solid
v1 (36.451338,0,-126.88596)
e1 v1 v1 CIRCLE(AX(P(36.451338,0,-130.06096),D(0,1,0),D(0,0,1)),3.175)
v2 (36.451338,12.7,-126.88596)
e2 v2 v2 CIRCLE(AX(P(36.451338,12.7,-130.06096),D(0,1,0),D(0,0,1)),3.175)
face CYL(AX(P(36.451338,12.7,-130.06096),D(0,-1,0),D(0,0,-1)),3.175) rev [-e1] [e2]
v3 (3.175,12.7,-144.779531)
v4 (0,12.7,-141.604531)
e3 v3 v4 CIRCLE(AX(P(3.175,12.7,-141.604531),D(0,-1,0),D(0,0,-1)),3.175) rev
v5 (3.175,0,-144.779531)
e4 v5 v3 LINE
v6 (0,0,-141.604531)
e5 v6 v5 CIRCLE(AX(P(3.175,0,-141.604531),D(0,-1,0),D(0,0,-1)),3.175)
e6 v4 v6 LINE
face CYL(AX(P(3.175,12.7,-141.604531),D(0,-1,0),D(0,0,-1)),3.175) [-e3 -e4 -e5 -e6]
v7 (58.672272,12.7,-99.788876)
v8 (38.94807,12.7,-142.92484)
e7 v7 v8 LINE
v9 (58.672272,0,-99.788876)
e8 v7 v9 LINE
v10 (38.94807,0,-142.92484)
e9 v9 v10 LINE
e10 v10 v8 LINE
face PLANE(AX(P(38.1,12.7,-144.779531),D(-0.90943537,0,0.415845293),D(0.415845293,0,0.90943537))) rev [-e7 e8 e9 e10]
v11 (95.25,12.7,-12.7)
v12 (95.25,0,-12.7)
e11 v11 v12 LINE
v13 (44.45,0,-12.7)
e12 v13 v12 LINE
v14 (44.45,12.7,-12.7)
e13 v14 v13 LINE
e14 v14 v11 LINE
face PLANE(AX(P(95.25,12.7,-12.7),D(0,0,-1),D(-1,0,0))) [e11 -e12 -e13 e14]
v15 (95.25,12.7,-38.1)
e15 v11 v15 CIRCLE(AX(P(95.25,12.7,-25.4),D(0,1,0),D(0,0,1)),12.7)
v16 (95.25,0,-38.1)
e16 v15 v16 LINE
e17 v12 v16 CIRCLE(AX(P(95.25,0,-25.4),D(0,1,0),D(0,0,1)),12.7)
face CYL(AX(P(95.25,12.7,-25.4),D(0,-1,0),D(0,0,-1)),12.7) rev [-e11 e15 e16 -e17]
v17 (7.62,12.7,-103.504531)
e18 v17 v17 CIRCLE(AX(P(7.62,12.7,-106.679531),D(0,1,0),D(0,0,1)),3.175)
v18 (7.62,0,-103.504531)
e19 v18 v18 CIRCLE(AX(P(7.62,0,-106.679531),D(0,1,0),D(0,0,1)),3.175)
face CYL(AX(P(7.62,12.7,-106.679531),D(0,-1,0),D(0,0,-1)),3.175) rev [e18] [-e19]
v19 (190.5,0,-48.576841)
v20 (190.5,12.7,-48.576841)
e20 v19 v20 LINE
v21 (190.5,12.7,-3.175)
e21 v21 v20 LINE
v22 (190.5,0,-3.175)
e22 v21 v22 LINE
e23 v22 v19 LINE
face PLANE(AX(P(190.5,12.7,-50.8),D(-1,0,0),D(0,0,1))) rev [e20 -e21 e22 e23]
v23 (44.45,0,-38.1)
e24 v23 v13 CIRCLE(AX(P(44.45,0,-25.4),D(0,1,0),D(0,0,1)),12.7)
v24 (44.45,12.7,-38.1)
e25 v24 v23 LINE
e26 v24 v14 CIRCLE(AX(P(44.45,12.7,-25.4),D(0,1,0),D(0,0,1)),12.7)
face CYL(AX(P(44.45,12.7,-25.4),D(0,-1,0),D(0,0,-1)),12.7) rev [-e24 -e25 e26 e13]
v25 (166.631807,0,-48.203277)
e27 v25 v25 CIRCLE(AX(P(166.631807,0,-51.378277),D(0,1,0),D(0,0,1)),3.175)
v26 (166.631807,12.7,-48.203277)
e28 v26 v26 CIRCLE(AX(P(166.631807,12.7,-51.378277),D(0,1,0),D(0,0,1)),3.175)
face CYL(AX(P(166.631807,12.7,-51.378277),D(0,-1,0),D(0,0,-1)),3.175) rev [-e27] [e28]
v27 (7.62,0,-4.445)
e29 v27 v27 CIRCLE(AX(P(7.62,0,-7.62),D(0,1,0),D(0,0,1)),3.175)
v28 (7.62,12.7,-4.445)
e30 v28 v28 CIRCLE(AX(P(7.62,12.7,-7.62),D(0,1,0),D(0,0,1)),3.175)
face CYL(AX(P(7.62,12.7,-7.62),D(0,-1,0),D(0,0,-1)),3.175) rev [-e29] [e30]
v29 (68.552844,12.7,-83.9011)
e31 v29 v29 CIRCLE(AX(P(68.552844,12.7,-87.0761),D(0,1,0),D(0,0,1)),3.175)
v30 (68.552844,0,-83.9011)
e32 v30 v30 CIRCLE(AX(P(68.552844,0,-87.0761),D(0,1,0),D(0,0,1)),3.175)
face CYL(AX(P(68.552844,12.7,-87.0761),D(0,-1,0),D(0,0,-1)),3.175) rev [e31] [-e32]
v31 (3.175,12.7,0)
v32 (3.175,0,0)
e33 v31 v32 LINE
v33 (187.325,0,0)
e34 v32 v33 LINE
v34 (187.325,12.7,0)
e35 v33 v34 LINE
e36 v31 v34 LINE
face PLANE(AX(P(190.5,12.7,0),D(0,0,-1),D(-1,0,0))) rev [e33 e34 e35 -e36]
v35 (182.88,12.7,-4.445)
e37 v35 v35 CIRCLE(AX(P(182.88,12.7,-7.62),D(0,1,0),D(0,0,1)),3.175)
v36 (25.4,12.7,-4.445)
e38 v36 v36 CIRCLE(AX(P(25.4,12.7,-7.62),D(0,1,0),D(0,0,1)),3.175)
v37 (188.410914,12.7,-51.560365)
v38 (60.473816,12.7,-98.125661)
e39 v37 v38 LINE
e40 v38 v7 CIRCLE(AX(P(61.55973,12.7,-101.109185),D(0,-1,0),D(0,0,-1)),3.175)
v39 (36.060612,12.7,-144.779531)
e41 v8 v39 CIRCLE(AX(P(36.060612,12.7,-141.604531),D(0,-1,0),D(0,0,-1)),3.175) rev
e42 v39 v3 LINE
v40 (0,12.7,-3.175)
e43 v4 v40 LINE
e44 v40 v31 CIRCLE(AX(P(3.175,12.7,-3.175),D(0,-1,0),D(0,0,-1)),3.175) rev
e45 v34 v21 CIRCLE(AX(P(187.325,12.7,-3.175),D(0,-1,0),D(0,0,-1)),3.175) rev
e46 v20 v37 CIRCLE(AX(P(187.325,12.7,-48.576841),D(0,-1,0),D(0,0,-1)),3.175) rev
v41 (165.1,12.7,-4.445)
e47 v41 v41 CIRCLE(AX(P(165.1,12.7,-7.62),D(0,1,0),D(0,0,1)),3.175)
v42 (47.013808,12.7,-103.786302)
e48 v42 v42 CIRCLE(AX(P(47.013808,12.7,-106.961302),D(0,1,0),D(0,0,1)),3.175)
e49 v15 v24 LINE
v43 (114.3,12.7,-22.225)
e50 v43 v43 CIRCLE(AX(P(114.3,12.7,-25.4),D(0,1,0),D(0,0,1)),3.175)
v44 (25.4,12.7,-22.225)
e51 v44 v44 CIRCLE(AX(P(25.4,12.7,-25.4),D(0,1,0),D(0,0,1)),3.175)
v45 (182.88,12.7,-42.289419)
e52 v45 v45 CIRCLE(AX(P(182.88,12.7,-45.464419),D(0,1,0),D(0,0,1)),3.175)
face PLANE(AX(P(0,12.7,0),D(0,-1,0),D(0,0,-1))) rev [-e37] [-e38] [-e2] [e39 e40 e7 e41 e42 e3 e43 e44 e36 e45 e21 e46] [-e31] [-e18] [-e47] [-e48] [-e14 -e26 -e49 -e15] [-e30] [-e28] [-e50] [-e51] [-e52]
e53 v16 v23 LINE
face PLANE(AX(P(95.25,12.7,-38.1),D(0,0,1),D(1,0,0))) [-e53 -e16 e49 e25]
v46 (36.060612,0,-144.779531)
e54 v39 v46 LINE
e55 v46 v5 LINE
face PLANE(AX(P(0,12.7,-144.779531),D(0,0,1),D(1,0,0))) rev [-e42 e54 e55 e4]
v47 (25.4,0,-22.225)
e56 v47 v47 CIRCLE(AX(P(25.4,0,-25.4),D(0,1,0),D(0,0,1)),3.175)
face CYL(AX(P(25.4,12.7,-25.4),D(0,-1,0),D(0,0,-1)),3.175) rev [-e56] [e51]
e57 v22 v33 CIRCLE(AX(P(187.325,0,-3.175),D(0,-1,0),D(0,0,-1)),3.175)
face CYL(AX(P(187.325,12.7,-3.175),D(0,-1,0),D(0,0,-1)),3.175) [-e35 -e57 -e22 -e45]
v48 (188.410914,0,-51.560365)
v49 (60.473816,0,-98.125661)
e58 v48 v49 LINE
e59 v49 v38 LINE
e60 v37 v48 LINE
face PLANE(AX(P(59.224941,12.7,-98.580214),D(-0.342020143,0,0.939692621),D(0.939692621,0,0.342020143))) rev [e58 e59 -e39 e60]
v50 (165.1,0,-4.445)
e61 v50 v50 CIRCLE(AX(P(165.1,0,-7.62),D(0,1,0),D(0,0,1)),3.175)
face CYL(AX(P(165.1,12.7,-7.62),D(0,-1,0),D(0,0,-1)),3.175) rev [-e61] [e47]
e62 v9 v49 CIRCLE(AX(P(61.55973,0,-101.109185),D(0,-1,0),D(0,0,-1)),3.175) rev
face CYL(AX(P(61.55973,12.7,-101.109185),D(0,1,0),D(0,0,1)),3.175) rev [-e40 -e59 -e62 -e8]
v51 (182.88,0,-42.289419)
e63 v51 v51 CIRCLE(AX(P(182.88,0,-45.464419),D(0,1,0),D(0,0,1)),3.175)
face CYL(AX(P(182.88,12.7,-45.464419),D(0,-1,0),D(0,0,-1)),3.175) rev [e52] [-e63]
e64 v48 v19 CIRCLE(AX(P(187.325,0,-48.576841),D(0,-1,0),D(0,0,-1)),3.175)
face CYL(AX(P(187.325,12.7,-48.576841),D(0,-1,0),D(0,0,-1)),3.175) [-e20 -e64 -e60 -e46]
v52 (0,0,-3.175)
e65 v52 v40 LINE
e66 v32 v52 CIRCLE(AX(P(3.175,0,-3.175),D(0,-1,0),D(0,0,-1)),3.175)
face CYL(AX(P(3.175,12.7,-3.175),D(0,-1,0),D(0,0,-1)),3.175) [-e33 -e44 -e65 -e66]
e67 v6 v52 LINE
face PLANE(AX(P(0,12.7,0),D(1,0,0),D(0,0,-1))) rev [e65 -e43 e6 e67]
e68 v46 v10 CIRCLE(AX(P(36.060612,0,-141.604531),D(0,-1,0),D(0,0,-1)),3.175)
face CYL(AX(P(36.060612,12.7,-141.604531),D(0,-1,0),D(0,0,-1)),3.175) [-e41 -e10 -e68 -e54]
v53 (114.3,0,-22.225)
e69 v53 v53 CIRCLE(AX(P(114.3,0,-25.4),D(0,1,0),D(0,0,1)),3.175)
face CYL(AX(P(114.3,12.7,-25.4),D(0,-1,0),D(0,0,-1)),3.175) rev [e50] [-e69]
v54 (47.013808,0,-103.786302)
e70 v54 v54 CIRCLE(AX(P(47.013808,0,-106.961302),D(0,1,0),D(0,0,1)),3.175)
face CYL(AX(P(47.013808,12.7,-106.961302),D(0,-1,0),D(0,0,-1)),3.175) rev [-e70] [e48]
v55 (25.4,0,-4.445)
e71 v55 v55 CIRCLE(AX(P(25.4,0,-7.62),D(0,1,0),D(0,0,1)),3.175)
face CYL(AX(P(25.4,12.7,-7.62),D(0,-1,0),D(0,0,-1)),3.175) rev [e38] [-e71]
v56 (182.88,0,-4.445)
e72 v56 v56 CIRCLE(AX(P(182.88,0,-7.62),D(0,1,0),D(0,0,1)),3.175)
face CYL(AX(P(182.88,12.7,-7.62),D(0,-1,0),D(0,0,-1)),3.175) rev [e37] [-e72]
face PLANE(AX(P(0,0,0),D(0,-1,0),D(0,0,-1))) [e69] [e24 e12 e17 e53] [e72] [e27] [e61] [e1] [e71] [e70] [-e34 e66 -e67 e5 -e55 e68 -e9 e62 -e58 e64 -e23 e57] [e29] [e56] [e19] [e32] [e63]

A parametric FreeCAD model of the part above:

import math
import FreeCAD as App
import Part
import Sketcher
from FreeCAD import Vector
Q = App.Units.Quantity


def edges_at(feature, points):
    """Names of the edges that pass closest to the given points."""
    edges = feature.Shape.Edges
    near = lambda p: min(range(len(edges)), key=lambda i: edges[i].distToShape(Part.Vertex(*p))[0])
    return sorted({f"Edge{near(p) + 1}" for p in points})


def add_polygon(sketch, points):
    """Adds a closed chain of lines whose ends are joined by coincident constraints."""
    first, n = sketch.GeometryCount, len(points)
    for a, b in zip(points, points[1:] + points[:1]):
        sketch.addGeometry(Part.LineSegment(App.Vector(*a, 0), App.Vector(*b, 0)), False)
    for i in range(n):
        sketch.addConstraint(Sketcher.Constraint("Coincident", first + i, 2, first + (i + 1) % n, 1))

doc = App.newDocument("Part")
body = doc.addObject("PartDesign::Body", "Body")

# Sketch on XZ plane
sketch1 = body.newObject("Sketcher::SketchObject", "Sketch")
sketch1.AttachmentSupport = (doc.getObject("XZ_Plane"), [""])
sketch1.MapMode = "FlatFace"
add_polygon(sketch1, [(38.1, -144.8), (0, -144.8), (0, 0), (190.5, 0), (190.5, -50.8), (59.2, -98.6)])  # lines 0-5
sketch1.addGeometry(Part.Circle(Vector(182.9, -7.6, 0), Vector(0, 0, 1), 3.2), False)  # 6
sketch1.addGeometry(Part.Circle(Vector(165.1, -7.6, 0), Vector(0, 0, 1), 3.2), False)  # 7
sketch1.addGeometry(Part.Circle(Vector(114.3, -25.4, 0), Vector(0, 0, 1), 3.2), False)  # 8
sketch1.addGeometry(Part.Circle(Vector(182.9, -45.5, 0), Vector(0, 0, 1), 3.2), False)  # 9
sketch1.addGeometry(Part.Circle(Vector(166.6, -51.4, 0), Vector(0, 0, 1), 3.2), False)  # 10
sketch1.addGeometry(Part.LineSegment(Vector(95.2, -12.7, 0), Vector(44.5, -12.7, 0)), False)  # 11
sketch1.addGeometry(Part.ArcOfCircle(Part.Circle(Vector(44.5, -25.4, 0), Vector(0, 0, 1), 12.7), math.radians(90), math.radians(270)), False)  # 12
sketch1.addGeometry(Part.LineSegment(Vector(44.5, -38.1, 0), Vector(95.2, -38.1, 0)), False)  # 13
sketch1.addGeometry(Part.ArcOfCircle(Part.Circle(Vector(95.2, -25.4, 0), Vector(0, 0, 1), 12.7), math.radians(-90), math.radians(90)), False)  # 14
sketch1.addGeometry(Part.Circle(Vector(25.4, -7.6, 0), Vector(0, 0, 1), 3.2), False)  # 15
sketch1.addGeometry(Part.Circle(Vector(7.6, -7.6, 0), Vector(0, 0, 1), 3.2), False)  # 16
sketch1.addGeometry(Part.Circle(Vector(25.4, -25.4, 0), Vector(0, 0, 1), 3.2), False)  # 17
sketch1.addGeometry(Part.Circle(Vector(68.6, -87.1, 0), Vector(0, 0, 1), 3.2), False)  # 18
sketch1.addGeometry(Part.Circle(Vector(47, -107, 0), Vector(0, 0, 1), 3.2), False)  # 19
sketch1.addGeometry(Part.Circle(Vector(7.6, -106.7, 0), Vector(0, 0, 1), 3.2), False)  # 20
sketch1.addGeometry(Part.Circle(Vector(36.5, -130.1, 0), Vector(0, 0, 1), 3.2), False)  # 21
sketch1.addConstraint(Sketcher.Constraint("Tangent", 11, 2, 12, 1))
sketch1.addConstraint(Sketcher.Constraint("Tangent", 12, 2, 13, 1))
sketch1.addConstraint(Sketcher.Constraint("Tangent", 13, 2, 14, 1))
sketch1.addConstraint(Sketcher.Constraint("Tangent", 14, 2, 11, 1))
sketch1.addConstraint(Sketcher.Constraint("Horizontal", 0))
sketch1.addConstraint(Sketcher.Constraint("Vertical", 1))
sketch1.addConstraint(Sketcher.Constraint("Horizontal", 2))
sketch1.addConstraint(Sketcher.Constraint("Vertical", 3))
sketch1.addConstraint(Sketcher.Constraint("Horizontal", 11))
sketch1.addConstraint(Sketcher.Constraint("Horizontal", 13))
sketch1.addConstraint(Sketcher.Constraint("Coincident", 1, 2, -1, 1))
sketch1.addConstraint(Sketcher.Constraint("Equal", 6, 7))
sketch1.addConstraint(Sketcher.Constraint("Equal", 7, 8))
sketch1.addConstraint(Sketcher.Constraint("Equal", 8, 9))
sketch1.addConstraint(Sketcher.Constraint("Equal", 9, 10))
sketch1.addConstraint(Sketcher.Constraint("Equal", 10, 15))
sketch1.addConstraint(Sketcher.Constraint("Equal", 15, 16))
sketch1.addConstraint(Sketcher.Constraint("Equal", 16, 17))
sketch1.addConstraint(Sketcher.Constraint("Equal", 17, 18))
sketch1.addConstraint(Sketcher.Constraint("Equal", 18, 19))
sketch1.addConstraint(Sketcher.Constraint("Equal", 19, 20))
sketch1.addConstraint(Sketcher.Constraint("Equal", 20, 21))
sketch1.addConstraint(Sketcher.Constraint("Horizontal", 6, 3, 7, 3))
sketch1.addConstraint(Sketcher.Constraint("Horizontal", 8, 3, 12, 3))
sketch1.addConstraint(Sketcher.Constraint("Horizontal", 7, 3, 15, 3))
sketch1.addConstraint(Sketcher.Constraint("Horizontal", 15, 3, 16, 3))
sketch1.addConstraint(Sketcher.Constraint("Horizontal", 14, 3, 17, 3))
sketch1.addConstraint(Sketcher.Constraint("Vertical", 6, 3, 9, 3))
sketch1.addConstraint(Sketcher.Constraint("Vertical", 15, 3, 17, 3))
sketch1.addConstraint(Sketcher.Constraint("Vertical", 16, 3, 20, 3))
sketch1.addConstraint(Sketcher.Constraint("Equal", 13, 3))
sketch1.addConstraint(Sketcher.Constraint("Radius", 12, Q("0.5 in")))
sketch1.addConstraint(Sketcher.Constraint("Diameter", 6, Q("0.25 in")))
sketch1.addConstraint(Sketcher.Constraint("DistanceX", 11, 2, 11, 1, Q("2 in")))
sketch1.addConstraint(Sketcher.Constraint("Distance", 5, Q("2 in")))
sketch1.addConstraint(Sketcher.Constraint("DistanceX", 0, 2, 0, 1, Q("1.5 in")))
sketch1.addConstraint(Sketcher.Constraint("DistanceX", 2, 1, 2, 2, Q("7.5 in")))
sketch1.addConstraint(Sketcher.Constraint("DistanceY", 8, 3, -1, 1, Q("1 in")))
sketch1.addConstraint(Sketcher.Constraint("DistanceX", -1, 1, 15, 3, Q("1 in")))
sketch1.addConstraint(Sketcher.Constraint("Angle", 4, Q("-160 deg")))
sketch1.addConstraint(Sketcher.Constraint("DistanceX", 8, 3, 7, 3, Q("2 in")))
sketch1.addConstraint(Sketcher.Constraint("DistanceX", 7, 3, 2, 2, Q("1 in")))
sketch1.addConstraint(Sketcher.Constraint("Distance", 4, Q("5.5 in")))
sketch1.addConstraint(Sketcher.Constraint("DistanceX", -1, 1, 6, 3, Q("7.2 in")))
sketch1.addConstraint(Sketcher.Constraint("DistanceY", 6, 3, -1, 1, Q("0.3 in")))
sketch1.addConstraint(Sketcher.Constraint("DistanceX", -1, 1, 16, 3, Q("0.3 in")))
sketch1.addConstraint(Sketcher.Constraint("DistanceY", 0, 2, 20, 3, Q("1.5 in")))
sketch1.addConstraint(Sketcher.Constraint("DistanceX", -1, 1, 12, 3, Q("1.75 in")))
sketch1.addConstraint(Sketcher.Constraint("DistanceY", 18, 3, -1, 1, Q("87.0761 mm")))
sketch1.addConstraint(Sketcher.Constraint("DistanceY", 19, 3, 18, 3, Q("19.885202 mm")))
sketch1.addConstraint(Sketcher.Constraint("DistanceY", 9, 3, -1, 1, Q("45.464419 mm")))
sketch1.addConstraint(Sketcher.Constraint("DistanceX", -1, 1, 19, 3, Q("47.013808 mm")))
sketch1.addConstraint(Sketcher.Constraint("DistanceY", 21, 3, -1, 1, Q("130.06096 mm")))
sketch1.addConstraint(Sketcher.Constraint("DistanceY", 10, 3, 9, 3, Q("5.913858 mm")))
sketch1.addConstraint(Sketcher.Constraint("DistanceX", 21, 3, 19, 3, Q("10.56247 mm")))
sketch1.addConstraint(Sketcher.Constraint("DistanceX", -1, 1, 10, 3, Q("166.631807 mm")))
sketch1.addConstraint(Sketcher.Constraint("DistanceX", -1, 1, 18, 3, Q("68.552844 mm")))
pad1 = body.newObject("PartDesign::Pad", "Pad")
pad1.Profile = sketch1
pad1.Length = Q("0.5 in")
pad1.Reversed = True
doc.recompute()

fillet = body.newObject("PartDesign::Fillet", "Fillet")
fillet.Base = (pad1, edges_at(pad1, [
    (0, 6.35, -144.78),
    (38.1, 6.35, -144.78),
    (59.225, 6.35, -98.58),
    (190.5, 6.35, -50.8),
    (190.5, 6.35, 0),
    (0, 6.35, 0),
]))
fillet.Radius = Q("0.125 in")

doc.recompute()
